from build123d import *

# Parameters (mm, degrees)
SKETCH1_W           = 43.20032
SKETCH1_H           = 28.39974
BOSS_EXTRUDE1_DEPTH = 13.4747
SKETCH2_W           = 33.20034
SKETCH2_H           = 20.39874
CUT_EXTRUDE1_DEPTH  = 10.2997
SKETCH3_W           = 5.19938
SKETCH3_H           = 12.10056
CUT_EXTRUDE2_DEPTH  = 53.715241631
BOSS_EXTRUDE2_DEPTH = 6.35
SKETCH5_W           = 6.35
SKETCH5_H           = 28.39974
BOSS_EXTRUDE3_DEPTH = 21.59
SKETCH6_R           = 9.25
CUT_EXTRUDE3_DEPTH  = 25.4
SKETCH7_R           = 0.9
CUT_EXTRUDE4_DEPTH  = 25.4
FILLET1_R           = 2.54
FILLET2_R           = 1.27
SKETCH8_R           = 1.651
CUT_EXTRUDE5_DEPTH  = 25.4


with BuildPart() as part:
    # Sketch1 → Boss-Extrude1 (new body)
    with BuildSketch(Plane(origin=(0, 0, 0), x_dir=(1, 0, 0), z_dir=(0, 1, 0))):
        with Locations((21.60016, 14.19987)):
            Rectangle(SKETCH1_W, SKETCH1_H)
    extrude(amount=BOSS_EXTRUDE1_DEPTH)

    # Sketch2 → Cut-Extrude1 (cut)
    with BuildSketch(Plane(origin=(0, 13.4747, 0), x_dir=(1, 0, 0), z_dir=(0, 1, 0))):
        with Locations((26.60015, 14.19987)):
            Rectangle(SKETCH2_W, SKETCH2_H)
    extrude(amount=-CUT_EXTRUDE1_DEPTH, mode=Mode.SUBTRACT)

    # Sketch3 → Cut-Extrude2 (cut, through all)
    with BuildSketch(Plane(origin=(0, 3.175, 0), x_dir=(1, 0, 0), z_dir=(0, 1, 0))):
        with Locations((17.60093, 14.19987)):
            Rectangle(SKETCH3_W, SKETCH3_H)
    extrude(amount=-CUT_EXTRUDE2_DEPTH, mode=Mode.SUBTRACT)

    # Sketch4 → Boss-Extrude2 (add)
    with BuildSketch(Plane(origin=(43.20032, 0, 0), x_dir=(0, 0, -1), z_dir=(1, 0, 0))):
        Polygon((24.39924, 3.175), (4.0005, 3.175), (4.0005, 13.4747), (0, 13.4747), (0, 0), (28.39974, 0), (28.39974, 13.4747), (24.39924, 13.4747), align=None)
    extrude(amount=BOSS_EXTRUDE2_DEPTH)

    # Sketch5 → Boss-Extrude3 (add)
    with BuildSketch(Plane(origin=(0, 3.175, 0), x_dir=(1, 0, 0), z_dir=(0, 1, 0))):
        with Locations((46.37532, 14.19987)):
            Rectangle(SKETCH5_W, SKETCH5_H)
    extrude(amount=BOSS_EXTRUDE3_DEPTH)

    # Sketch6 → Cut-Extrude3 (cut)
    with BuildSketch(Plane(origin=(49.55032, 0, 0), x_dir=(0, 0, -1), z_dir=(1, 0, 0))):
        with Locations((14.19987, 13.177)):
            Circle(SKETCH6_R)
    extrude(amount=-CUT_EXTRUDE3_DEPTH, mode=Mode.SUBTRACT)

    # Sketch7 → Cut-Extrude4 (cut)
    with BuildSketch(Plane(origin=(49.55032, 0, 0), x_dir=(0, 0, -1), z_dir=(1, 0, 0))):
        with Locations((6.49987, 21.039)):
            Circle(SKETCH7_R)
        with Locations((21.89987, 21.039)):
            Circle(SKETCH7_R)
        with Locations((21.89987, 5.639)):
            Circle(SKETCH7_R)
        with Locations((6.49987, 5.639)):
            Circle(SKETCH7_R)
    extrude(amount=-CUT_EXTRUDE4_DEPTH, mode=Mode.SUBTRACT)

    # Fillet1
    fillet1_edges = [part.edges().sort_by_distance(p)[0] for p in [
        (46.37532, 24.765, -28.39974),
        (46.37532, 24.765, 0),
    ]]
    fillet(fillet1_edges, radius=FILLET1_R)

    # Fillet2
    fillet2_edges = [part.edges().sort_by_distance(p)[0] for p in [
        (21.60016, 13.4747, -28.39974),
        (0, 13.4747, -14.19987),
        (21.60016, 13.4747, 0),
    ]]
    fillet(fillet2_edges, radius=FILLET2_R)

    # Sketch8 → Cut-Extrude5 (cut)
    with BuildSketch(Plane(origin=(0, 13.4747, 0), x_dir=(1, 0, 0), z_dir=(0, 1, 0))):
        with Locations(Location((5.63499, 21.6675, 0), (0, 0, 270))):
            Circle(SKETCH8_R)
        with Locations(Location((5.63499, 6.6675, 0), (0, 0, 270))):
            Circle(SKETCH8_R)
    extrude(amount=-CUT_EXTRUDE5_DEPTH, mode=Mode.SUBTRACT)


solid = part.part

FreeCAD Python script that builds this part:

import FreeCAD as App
import Part
import Sketcher

V = App.Vector
Q = App.Units.Quantity


def edges_at(feature, points):
    """Names of the edges that pass closest to the given points."""
    edges = feature.Shape.Edges
    near = lambda p: min(range(len(edges)), key=lambda i: edges[i].distToShape(Part.Vertex(*p))[0])
    return sorted({f"Edge{near(p) + 1}" for p in points})


def add_polygon(sketch, points):
    """Adds a closed chain of lines whose ends are joined by coincident constraints."""
    first, n = sketch.GeometryCount, len(points)
    for a, b in zip(points, points[1:] + points[:1]):
        sketch.addGeometry(Part.LineSegment(App.Vector(*a, 0), App.Vector(*b, 0)), False)
    for i in range(n):
        sketch.addConstraint(Sketcher.Constraint("Coincident", first + i, 2, first + (i + 1) % n, 1))

doc = App.newDocument("Part")
body = doc.addObject("PartDesign::Body", "Body")

# Sketch on XZ plane
sketch1 = body.newObject("Sketcher::SketchObject", "Sketch")
sketch1.AttachmentSupport = (doc.getObject("XZ_Plane"), [""])
sketch1.MapMode = "FlatFace"
add_polygon(sketch1, [(0, -28), (0, 0), (43, 0), (43, -28)])  # lines 0-3
sketch1.addConstraint([
    Sketcher.Constraint("Vertical", 0),
    Sketcher.Constraint("Horizontal", 1),
    Sketcher.Constraint("Vertical", 2),
    Sketcher.Constraint("Horizontal", 3),
    Sketcher.Constraint("Coincident", 0, 2, -1, 1),
    Sketcher.Constraint("DistanceX", 1, 1, 1, 2, Q("1.7008 in")),
    Sketcher.Constraint("DistanceY", 0, 1, 0, 2, Q("1.1181 in")),
])
pad1 = body.newObject("PartDesign::Pad", "Pad")
pad1.Profile = sketch1
pad1.Length = Q("0.5305 in")
pad1.Reversed = True

# Sketch on XZ plane
sketch2 = body.newObject("Sketcher::SketchObject", "Sketch001")
sketch2.AttachmentSupport = (doc.getObject("XZ_Plane"), [""])
sketch2.MapMode = "FlatFace"
sketch2.AttachmentOffset = App.Placement(V(0, 0, -0.5305 * 25.4), App.Rotation())
add_polygon(sketch2, [(10, -24), (10, -4), (43, -4), (43, -24)])  # lines 0-3
sketch2.addConstraint([
    Sketcher.Constraint("Vertical", 0),
    Sketcher.Constraint("Horizontal", 1),
    Sketcher.Constraint("Vertical", 2),
    Sketcher.Constraint("Horizontal", 3),
    Sketcher.Constraint("DistanceX", 1, 1, 1, 2, Q("1.3071 in")),
    Sketcher.Constraint("DistanceY", 0, 1, 0, 2, Q("0.8031 in")),
    Sketcher.Constraint("DistanceX", -1, 1, 0, 2, Q("0.3937 in")),
    Sketcher.Constraint("DistanceY", 0, 2, -1, 1, Q("0.1575 in")),
])
pocket1 = body.newObject("PartDesign::Pocket", "Pocket")
pocket1.Profile = sketch2
pocket1.Length = Q("0.4055 in")
pocket1.Reversed = True

# Sketch on XZ plane
sketch3 = body.newObject("Sketcher::SketchObject", "Sketch002")
sketch3.AttachmentSupport = (doc.getObject("XZ_Plane"), [""])
sketch3.MapMode = "FlatFace"
sketch3.AttachmentOffset = App.Placement(V(0, 0, -0.125 * 25.4), App.Rotation())
add_polygon(sketch3, [(15, -20), (15, -8), (20, -8), (20, -20)])  # lines 0-3
sketch3.addConstraint([
    Sketcher.Constraint("Vertical", 0),
    Sketcher.Constraint("Horizontal", 1),
    Sketcher.Constraint("Vertical", 2),
    Sketcher.Constraint("Horizontal", 3),
    Sketcher.Constraint("DistanceX", 1, 1, 1, 2, Q("0.2047 in")),
    Sketcher.Constraint("DistanceY", 0, 1, 0, 2, Q("0.4764 in")),
    Sketcher.Constraint("DistanceX", -1, 1, 0, 2, Q("0.5906 in")),
    Sketcher.Constraint("DistanceY", 0, 2, -1, 1, 8.14959),
])
pocket2 = body.newObject("PartDesign::Pocket", "Pocket001")
pocket2.Profile = sketch3
pocket2.Type = "ThroughAll"
pocket2.Reversed = True

# Sketch on YZ plane
sketch4 = body.newObject("Sketcher::SketchObject", "Sketch003")
sketch4.AttachmentSupport = (doc.getObject("YZ_Plane"), [""])
sketch4.MapMode = "FlatFace"
sketch4.AttachmentOffset = App.Placement(V(0, 0, 1.7008 * 25.4), App.Rotation())
add_polygon(sketch4, [(3.2, -24.4), (3.2, -4), (13.5, -4), (13.5, 0), (0, 0), (0, -28.4), (13.5, -28.4), (13.5, -24.4)])  # lines 0-7
sketch4.addConstraint([
    Sketcher.Constraint("Vertical", 0),
    Sketcher.Constraint("Horizontal", 1),
    Sketcher.Constraint("Vertical", 2),
    Sketcher.Constraint("Horizontal", 3),
    Sketcher.Constraint("Vertical", 4),
    Sketcher.Constraint("Horizontal", 5),
    Sketcher.Constraint("Vertical", 6),
    Sketcher.Constraint("Horizontal", 7),
    Sketcher.Constraint("Coincident", 3, 2, -1, 1),
    Sketcher.Constraint("Vertical", 2, 2, 5, 2),
    Sketcher.Constraint("Equal", 2, 6),
    Sketcher.Constraint("DistanceX", 1, 1, 1, 2, Q("0.4055 in")),
    Sketcher.Constraint("DistanceX", 3, 2, 3, 1, Q("0.5305 in")),
    Sketcher.Constraint("DistanceY", 0, 1, 0, 2, Q("0.8031 in")),
    Sketcher.Constraint("DistanceY", 2, 1, 2, 2, Q("0.1575 in")),
])
pad2 = body.newObject("PartDesign::Pad", "Pad001")
pad2.Profile = sketch4
pad2.Length = Q("0.25 in")

# Sketch on XZ plane
sketch5 = body.newObject("Sketcher::SketchObject", "Sketch004")
sketch5.AttachmentSupport = (doc.getObject("XZ_Plane"), [""])
sketch5.MapMode = "FlatFace"
sketch5.AttachmentOffset = App.Placement(V(0, 0, -0.125 * 25.4), App.Rotation())
add_polygon(sketch5, [(43, -28), (43, 0), (50, 0), (50, -28)])  # lines 0-3
sketch5.addConstraint([
    Sketcher.Constraint("Vertical", 0),
    Sketcher.Constraint("Horizontal", 1),
    Sketcher.Constraint("Vertical", 2),
    Sketcher.Constraint("Horizontal", 3),
    Sketcher.Constraint("PointOnObject", 0, 2, -1),
    Sketcher.Constraint("DistanceX", 1, 1, 1, 2, Q("0.25 in")),
    Sketcher.Constraint("DistanceY", 0, 1, 0, 2, Q("1.1181 in")),
    Sketcher.Constraint("DistanceX", -1, 1, 0, 2, Q("1.7008 in")),
])
pad3 = body.newObject("PartDesign::Pad", "Pad002")
pad3.Profile = sketch5
pad3.Length = Q("0.85 in")
pad3.Reversed = True

# Sketch on YZ plane
sketch6 = body.newObject("Sketcher::SketchObject", "Sketch005")
sketch6.AttachmentSupport = (doc.getObject("YZ_Plane"), [""])
sketch6.MapMode = "FlatFace"
sketch6.AttachmentOffset = App.Placement(V(0, 0, 1.9508 * 25.4), App.Rotation())
sketch6.addGeometry(Part.Circle(V(13, -14, 0), V(0, 0, 1), 9), False)
sketch6.addConstraint([
    Sketcher.Constraint("Diameter", 0, 18.5),
    Sketcher.Constraint("DistanceX", -1, 1, 0, 3, 13.177),
    Sketcher.Constraint("DistanceY", 0, 3, -1, 1, 14.19987),
])
pocket3 = body.newObject("PartDesign::Pocket", "Pocket002")
pocket3.Profile = sketch6
pocket3.Length = Q("1 in")

# Sketch on YZ plane
sketch7 = body.newObject("Sketcher::SketchObject", "Sketch006")
sketch7.AttachmentSupport = (doc.getObject("YZ_Plane"), [""])
sketch7.MapMode = "FlatFace"
sketch7.AttachmentOffset = App.Placement(V(0, 0, 1.9508 * 25.4), App.Rotation())
sketch7.addGeometry([
    Part.Circle(V(21, -6.5, 0), V(0, 0, 1), 0.9),
    Part.Circle(V(21, -21.9, 0), V(0, 0, 1), 0.9),
    Part.Circle(V(5.6, -21.9, 0), V(0, 0, 1), 0.9),
    Part.Circle(V(5.6, -6.5, 0), V(0, 0, 1), 0.9),
], False)
sketch7.addConstraint([
    Sketcher.Constraint("Equal", 0, 1),
    Sketcher.Constraint("Equal", 1, 2),
    Sketcher.Constraint("Equal", 2, 3),
    Sketcher.Constraint("Horizontal", 1, 3, 2, 3),
    Sketcher.Constraint("Horizontal", 0, 3, 3, 3),
    Sketcher.Constraint("Vertical", 0, 3, 1, 3),
    Sketcher.Constraint("Vertical", 2, 3, 3, 3),
    Sketcher.Constraint("Diameter", 0, 1.8),
    Sketcher.Constraint("DistanceX", -1, 1, 0, 3, 21.039),
    Sketcher.Constraint("DistanceX", -1, 1, 2, 3, 5.639),
    Sketcher.Constraint("DistanceY", 1, 3, 0, 3, 15.4),
    Sketcher.Constraint("DistanceY", 0, 3, -1, 1, 6.49987),
])
pocket4 = body.newObject("PartDesign::Pocket", "Pocket003")
pocket4.Profile = sketch7
pocket4.Length = Q("1 in")
doc.recompute()

fillet = body.newObject("PartDesign::Fillet", "Fillet")
fillet.Base = (pocket4, edges_at(pocket4, [(46.375, 24.765, -28.4), (46.375, 24.765, 0)]))
fillet.Radius = Q("0.1 in")
doc.recompute()

fillet2 = body.newObject("PartDesign::Fillet", "Fillet001")
fillet2.Base = (fillet, edges_at(fillet, [(21.6, 13.475, -28.4), (0, 13.475, -14.2), (21.6, 13.475, 0)]))
fillet2.Radius = Q("0.05 in")

# Sketch on XZ plane
sketch8 = body.newObject("Sketcher::SketchObject", "Sketch007")
sketch8.AttachmentSupport = (doc.getObject("XZ_Plane"), [""])
sketch8.MapMode = "FlatFace"
sketch8.AttachmentOffset = App.Placement(V(0, 0, -0.5305 * 25.4), App.Rotation())
sketch8.addGeometry([
    Part.Circle(V(5.6, -21.7, 0), V(0, 0, 1), 1.7),
    Part.Circle(V(5.6, -6.7, 0), V(0, 0, 1), 1.7),
], False)
sketch8.addConstraint([
    Sketcher.Constraint("Equal", 0, 1),
    Sketcher.Constraint("Vertical", 0, 3, 1, 3),
    Sketcher.Constraint("Diameter", 0, Q("0.13 in")),
    Sketcher.Constraint("DistanceY", 1, 3, -1, 1, Q("0.2625 in")),
    Sketcher.Constraint("DistanceY", 0, 3, -1, 1, 21.6675),
    Sketcher.Constraint("DistanceX", -1, 1, 0, 3, 5.63499),
])
pocket5 = body.newObject("PartDesign::Pocket", "Pocket004")
pocket5.Profile = sketch8
pocket5.Length = Q("1 in")
pocket5.Reversed = True

doc.recompute()
